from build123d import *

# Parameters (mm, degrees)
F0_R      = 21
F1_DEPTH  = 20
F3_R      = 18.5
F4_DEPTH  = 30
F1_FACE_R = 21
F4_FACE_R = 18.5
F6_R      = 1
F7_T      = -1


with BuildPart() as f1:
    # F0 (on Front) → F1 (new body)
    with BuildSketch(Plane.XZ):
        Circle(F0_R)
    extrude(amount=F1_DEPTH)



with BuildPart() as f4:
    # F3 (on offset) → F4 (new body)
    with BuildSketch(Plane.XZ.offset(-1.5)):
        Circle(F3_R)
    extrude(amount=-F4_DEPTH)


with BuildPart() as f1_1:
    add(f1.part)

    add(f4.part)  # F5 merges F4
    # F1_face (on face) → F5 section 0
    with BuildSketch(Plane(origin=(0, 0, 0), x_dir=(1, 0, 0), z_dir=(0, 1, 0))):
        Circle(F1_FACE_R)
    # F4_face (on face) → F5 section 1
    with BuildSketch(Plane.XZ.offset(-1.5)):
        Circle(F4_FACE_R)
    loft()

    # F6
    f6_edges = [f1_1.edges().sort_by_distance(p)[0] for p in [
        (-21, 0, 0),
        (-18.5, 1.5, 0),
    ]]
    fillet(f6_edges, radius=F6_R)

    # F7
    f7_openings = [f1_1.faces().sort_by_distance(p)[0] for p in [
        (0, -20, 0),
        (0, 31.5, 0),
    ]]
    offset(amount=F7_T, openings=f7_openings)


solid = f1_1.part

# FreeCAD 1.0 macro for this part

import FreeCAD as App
import Part
import Sketcher


def edges_at(feature, points):
    """Names of the edges that pass closest to the given points."""
    edges = feature.Shape.Edges
    near = lambda p: min(range(len(edges)), key=lambda i: edges[i].distToShape(Part.Vertex(*p))[0])
    return sorted({f"Edge{near(p) + 1}" for p in points})


def faces_at(feature, points):
    """Names of the faces that lie closest to the given points."""
    faces = feature.Shape.Faces
    near = lambda p: min(range(len(faces)), key=lambda i: faces[i].distToShape(Part.Vertex(*p))[0])
    return sorted({f"Face{near(p) + 1}" for p in points})

doc = App.newDocument("Part")
body = doc.addObject("PartDesign::Body", "Body")

sketch1 = body.newObject("Sketcher::SketchObject", "Sketch")
sketch1.AttachmentSupport = (doc.getObject("XZ_Plane"), [""])
sketch1.MapMode = "FlatFace"
sketch1.addGeometry(Part.Circle(App.Vector(0, 0, 0), App.Vector(0, 0, 1), 21), False)
sketch1.addConstraint(Sketcher.Constraint("Coincident", 0, 3, -1, 1))
sketch1.addConstraint(Sketcher.Constraint("Diameter", 0, 42.0))
pad1 = body.newObject("PartDesign::Pad", "Pad")
pad1.Profile = sketch1
pad1.Length = 20
body2 = doc.addObject("PartDesign::Body", "Body001")

sketch2 = body2.newObject("Sketcher::SketchObject", "Sketch001")
sketch2.AttachmentSupport = (doc.getObject("XZ_Plane001"), [""])
sketch2.MapMode = "FlatFace"
sketch2.AttachmentOffset = App.Placement(App.Vector(0, 0, -1.5), App.Rotation())
sketch2.addGeometry(Part.Circle(App.Vector(0, 0, 0), App.Vector(0, 0, 1), 18), False)
sketch2.addConstraint(Sketcher.Constraint("Coincident", 0, 3, -1, 1))
sketch2.addConstraint(Sketcher.Constraint("Diameter", 0, 37.0))
pad2 = body2.newObject("PartDesign::Pad", "Pad001")
pad2.Profile = sketch2
pad2.Length = 30
pad2.Reversed = True
body.AllowCompound = True
doc.recompute()

boolean = body.newObject("PartDesign::Boolean", "Boolean")
boolean.Type = "Fuse"
boolean.addObjects([body2])

sketch3 = body.newObject("Sketcher::SketchObject", "Sketch002")
sketch3.AttachmentSupport = (doc.getObject("XZ_Plane"), [""])
sketch3.MapMode = "FlatFace"
sketch3.addGeometry(Part.Circle(App.Vector(0, 0, 0), App.Vector(0, 0, 1), 21), False)
sketch3.addConstraint(Sketcher.Constraint("Coincident", 0, 3, -1, 1))
sketch3.addConstraint(Sketcher.Constraint("Diameter", 0, 42.0))

sketch4 = body.newObject("Sketcher::SketchObject", "Sketch003")
sketch4.AttachmentSupport = (doc.getObject("XZ_Plane"), [""])
sketch4.MapMode = "FlatFace"
sketch4.AttachmentOffset = App.Placement(App.Vector(0, 0, -1.5), App.Rotation())
sketch4.addGeometry(Part.Circle(App.Vector(0, 0, 0), App.Vector(0, 0, 1), 18), False)
sketch4.addConstraint(Sketcher.Constraint("Coincident", 0, 3, -1, 1))
sketch4.addConstraint(Sketcher.Constraint("Diameter", 0, 37.0))

additiveloft = body.newObject("PartDesign::AdditiveLoft", "AdditiveLoft")
additiveloft.Profile = sketch3
additiveloft.Sections = [sketch4]
doc.recompute()

fillet = body.newObject("PartDesign::Fillet", "Fillet")
fillet.Base = (additiveloft, edges_at(additiveloft, [(-21, 0, 0), (-18.5, 1.5, 0)]))
fillet.Radius = 1
doc.recompute()

thickness = body.newObject("PartDesign::Thickness", "Thickness")
thickness.Base = (fillet, faces_at(fillet, [(0, -20, 0), (0, 31.5, 0)]))
thickness.Value = 1
thickness.Reversed = True
thickness.Join = "Arc"

doc.recompute()
